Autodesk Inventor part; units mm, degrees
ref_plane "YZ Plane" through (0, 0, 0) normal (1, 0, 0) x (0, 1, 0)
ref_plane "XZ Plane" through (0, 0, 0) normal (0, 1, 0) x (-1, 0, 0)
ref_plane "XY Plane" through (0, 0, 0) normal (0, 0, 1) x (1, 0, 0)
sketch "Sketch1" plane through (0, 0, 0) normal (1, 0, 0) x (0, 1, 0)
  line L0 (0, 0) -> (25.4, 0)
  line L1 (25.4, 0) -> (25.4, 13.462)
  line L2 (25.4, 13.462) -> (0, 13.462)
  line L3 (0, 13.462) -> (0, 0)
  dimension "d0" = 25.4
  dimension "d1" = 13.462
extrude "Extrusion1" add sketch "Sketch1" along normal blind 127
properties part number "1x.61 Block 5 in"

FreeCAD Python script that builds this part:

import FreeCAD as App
import Part
import Sketcher
Q = App.Units.Quantity

doc = App.newDocument("Part")
body = doc.addObject("PartDesign::Body", "Body")

sketch1 = body.newObject("Sketcher::SketchObject", "Sketch")
sketch1.AttachmentSupport = (doc.getObject("YZ_Plane"), [""])
sketch1.MapMode = "FlatFace"
sketch1.addGeometry(Part.LineSegment(App.Vector(0, 13.462, 0), App.Vector(0, 0, 0)), False)
sketch1.addGeometry(Part.LineSegment(App.Vector(0, 0, 0), App.Vector(25.4, 0, 0)), False)
sketch1.addGeometry(Part.LineSegment(App.Vector(25.4, 0, 0), App.Vector(25.4, 13.462, 0)), False)
sketch1.addGeometry(Part.LineSegment(App.Vector(25.4, 13.462, 0), App.Vector(0, 13.462, 0)), False)
sketch1.addConstraint(Sketcher.Constraint("Coincident", 0, 2, 1, 1))
sketch1.addConstraint(Sketcher.Constraint("Coincident", 1, 2, 2, 1))
sketch1.addConstraint(Sketcher.Constraint("Coincident", 2, 2, 3, 1))
sketch1.addConstraint(Sketcher.Constraint("Coincident", 3, 2, 0, 1))
sketch1.addConstraint(Sketcher.Constraint("Vertical", 0))
sketch1.addConstraint(Sketcher.Constraint("Horizontal", 1))
sketch1.addConstraint(Sketcher.Constraint("Vertical", 2))
sketch1.addConstraint(Sketcher.Constraint("Horizontal", 3))
sketch1.addConstraint(Sketcher.Constraint("Coincident", 0, 2, -1, 1))
sketch1.addConstraint(Sketcher.Constraint("DistanceX", 1, 1, 1, 2, Q("1 in")))
sketch1.addConstraint(Sketcher.Constraint("DistanceY", 0, 2, 0, 1, Q("0.53 in")))
pad1 = body.newObject("PartDesign::Pad", "Pad")
pad1.Profile = sketch1
pad1.Length = Q("5 in")

doc.recompute()
